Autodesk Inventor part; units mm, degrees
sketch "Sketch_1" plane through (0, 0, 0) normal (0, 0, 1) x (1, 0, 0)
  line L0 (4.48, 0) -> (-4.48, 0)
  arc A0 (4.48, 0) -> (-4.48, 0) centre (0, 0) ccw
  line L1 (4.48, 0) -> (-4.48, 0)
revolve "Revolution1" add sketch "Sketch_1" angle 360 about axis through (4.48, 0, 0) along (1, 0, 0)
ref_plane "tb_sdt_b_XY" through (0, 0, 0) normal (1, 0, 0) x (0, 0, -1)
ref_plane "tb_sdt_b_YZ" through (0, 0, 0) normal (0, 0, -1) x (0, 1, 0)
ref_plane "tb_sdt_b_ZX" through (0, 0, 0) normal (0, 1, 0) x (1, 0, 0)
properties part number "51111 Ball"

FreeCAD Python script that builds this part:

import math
import FreeCAD as App
import Part
import Sketcher
from FreeCAD import Vector
Q = App.Units.Quantity

doc = App.newDocument("Part")
body = doc.addObject("PartDesign::Body", "Body")

sketch1 = body.newObject("Sketcher::SketchObject", "Sketch")
sketch1.AttachmentSupport = (doc.getObject("XY_Plane"), [""])
sketch1.MapMode = "FlatFace"
sketch1.addGeometry(Part.LineSegment(Vector(-4.5, 0, 0), Vector(4.5, 0, 0)), False)
sketch1.addGeometry(Part.ArcOfCircle(Part.Circle(Vector(0, 0, 0), Vector(0, 0, 1), 4.5), math.radians(0), math.radians(180)), False)
sketch1.addConstraint(Sketcher.Constraint("Coincident", 0, 1, 1, 2))
sketch1.addConstraint(Sketcher.Constraint("Coincident", 1, 1, 0, 2))
sketch1.addConstraint(Sketcher.Constraint("Horizontal", 0))
sketch1.addConstraint(Sketcher.Constraint("Coincident", 1, 3, -1, 1))
sketch1.addConstraint(Sketcher.Constraint("PointOnObject", 0, 1, -1))
sketch1.addConstraint(Sketcher.Constraint("Radius", 1, Q("4.48 mm")))
revolution = body.newObject("PartDesign::Revolution", "Revolution")
revolution.Profile = sketch1
revolution.ReferenceAxis = (sketch1, ["H_Axis"])
revolution.Angle = 360

doc.recompute()
